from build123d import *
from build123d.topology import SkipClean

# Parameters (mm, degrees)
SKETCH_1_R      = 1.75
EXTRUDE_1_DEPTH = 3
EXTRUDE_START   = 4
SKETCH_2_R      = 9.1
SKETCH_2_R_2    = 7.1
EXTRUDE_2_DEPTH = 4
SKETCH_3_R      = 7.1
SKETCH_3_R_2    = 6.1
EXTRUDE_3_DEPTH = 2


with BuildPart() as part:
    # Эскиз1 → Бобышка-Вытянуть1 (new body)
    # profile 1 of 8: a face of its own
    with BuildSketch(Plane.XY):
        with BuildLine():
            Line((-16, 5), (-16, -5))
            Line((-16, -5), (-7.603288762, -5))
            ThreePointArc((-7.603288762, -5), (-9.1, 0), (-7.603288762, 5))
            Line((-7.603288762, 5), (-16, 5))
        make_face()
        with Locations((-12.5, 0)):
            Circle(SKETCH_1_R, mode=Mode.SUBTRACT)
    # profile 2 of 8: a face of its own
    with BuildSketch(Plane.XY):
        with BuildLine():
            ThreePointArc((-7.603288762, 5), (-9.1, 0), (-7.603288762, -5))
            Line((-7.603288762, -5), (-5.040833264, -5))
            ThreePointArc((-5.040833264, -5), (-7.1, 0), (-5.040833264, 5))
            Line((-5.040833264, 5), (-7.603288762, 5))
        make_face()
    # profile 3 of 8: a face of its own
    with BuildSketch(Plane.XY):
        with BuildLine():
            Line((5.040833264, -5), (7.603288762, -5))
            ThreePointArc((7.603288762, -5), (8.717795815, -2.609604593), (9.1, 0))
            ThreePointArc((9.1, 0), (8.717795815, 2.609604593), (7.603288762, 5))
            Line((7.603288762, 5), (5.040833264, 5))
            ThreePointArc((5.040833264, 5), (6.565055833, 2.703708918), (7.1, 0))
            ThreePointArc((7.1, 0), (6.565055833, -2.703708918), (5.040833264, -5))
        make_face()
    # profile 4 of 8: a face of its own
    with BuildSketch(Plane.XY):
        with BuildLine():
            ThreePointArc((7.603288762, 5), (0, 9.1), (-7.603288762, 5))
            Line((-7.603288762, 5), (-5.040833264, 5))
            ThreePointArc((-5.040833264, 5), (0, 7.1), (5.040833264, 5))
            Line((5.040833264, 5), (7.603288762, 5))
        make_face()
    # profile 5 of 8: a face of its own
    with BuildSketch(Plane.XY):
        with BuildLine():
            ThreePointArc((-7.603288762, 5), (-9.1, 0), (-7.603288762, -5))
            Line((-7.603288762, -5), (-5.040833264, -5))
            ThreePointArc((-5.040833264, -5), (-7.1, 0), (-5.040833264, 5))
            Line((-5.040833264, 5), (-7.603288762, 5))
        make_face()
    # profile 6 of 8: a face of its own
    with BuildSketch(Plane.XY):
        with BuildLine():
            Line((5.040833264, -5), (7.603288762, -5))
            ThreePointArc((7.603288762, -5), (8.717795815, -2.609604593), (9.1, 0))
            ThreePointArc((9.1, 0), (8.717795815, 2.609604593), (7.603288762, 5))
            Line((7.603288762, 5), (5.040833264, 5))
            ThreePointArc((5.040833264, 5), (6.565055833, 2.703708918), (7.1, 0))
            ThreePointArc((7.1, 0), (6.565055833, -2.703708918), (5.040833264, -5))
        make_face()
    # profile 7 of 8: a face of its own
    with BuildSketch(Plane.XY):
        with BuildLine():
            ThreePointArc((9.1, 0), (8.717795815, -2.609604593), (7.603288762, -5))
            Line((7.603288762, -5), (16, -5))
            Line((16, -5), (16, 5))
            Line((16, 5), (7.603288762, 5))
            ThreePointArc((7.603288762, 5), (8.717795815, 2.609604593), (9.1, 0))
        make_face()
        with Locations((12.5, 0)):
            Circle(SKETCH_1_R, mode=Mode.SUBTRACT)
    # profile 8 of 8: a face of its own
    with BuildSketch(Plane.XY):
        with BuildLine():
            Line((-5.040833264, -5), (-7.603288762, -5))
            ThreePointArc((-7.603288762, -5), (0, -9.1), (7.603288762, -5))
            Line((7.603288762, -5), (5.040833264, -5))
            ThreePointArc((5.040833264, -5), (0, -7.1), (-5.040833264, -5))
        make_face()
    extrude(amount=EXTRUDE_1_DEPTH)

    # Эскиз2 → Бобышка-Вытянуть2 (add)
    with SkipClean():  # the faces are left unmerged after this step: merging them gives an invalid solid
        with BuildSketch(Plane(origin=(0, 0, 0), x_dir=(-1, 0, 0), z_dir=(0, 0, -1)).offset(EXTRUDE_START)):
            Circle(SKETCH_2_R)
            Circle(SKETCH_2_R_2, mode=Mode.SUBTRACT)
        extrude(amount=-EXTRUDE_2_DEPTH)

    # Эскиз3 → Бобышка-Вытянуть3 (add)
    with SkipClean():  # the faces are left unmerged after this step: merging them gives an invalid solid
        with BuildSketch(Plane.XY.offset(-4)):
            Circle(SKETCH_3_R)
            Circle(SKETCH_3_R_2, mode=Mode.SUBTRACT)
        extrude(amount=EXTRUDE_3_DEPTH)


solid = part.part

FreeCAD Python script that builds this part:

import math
import FreeCAD as App
import Part
import Sketcher
from FreeCAD import Vector

doc = App.newDocument("Part")
body = doc.addObject("PartDesign::Body", "Body")

sketch1 = body.newObject("Sketcher::SketchObject", "Sketch")
sketch1.AttachmentSupport = (doc.getObject("XY_Plane"), [""])
sketch1.MapMode = "FlatFace"
sketch1.addGeometry(Part.LineSegment(Vector(-16, 5, 0), Vector(-16, -5, 0)), False)
sketch1.addGeometry(Part.LineSegment(Vector(-16, -5, 0), Vector(-7.6, -5, 0)), False)
sketch1.addGeometry(Part.ArcOfCircle(Part.Circle(Vector(0, 0, 0), Vector(0, 0, 1), 9.1), math.radians(-147), math.radians(-33)), False)
sketch1.addGeometry(Part.LineSegment(Vector(7.6, -5, 0), Vector(16, -5, 0)), False)
sketch1.addGeometry(Part.LineSegment(Vector(16, -5, 0), Vector(16, 5, 0)), False)
sketch1.addGeometry(Part.LineSegment(Vector(16, 5, 0), Vector(7.6, 5, 0)), False)
sketch1.addGeometry(Part.ArcOfCircle(Part.Circle(Vector(0, 0, 0), Vector(0, 0, 1), 9.1), math.radians(33), math.radians(147)), False)
sketch1.addGeometry(Part.LineSegment(Vector(-7.6, 5, 0), Vector(-16, 5, 0)), False)
sketch1.addGeometry(Part.Circle(Vector(-12.5, 0, 0), Vector(0, 0, 1), 1.8), False)
sketch1.addGeometry(Part.ArcOfCircle(Part.Circle(Vector(0, 0, 0), Vector(0, 0, 1), 7.1), math.radians(135), math.radians(225)), False)
sketch1.addGeometry(Part.ArcOfCircle(Part.Circle(Vector(0, 0, 0), Vector(0, 0, 1), 7.1), math.radians(45), math.radians(135)), False)
sketch1.addGeometry(Part.ArcOfCircle(Part.Circle(Vector(0, 0, 0), Vector(0, 0, 1), 7.1), math.radians(0), math.radians(45)), False)
sketch1.addGeometry(Part.ArcOfCircle(Part.Circle(Vector(0, 0, 0), Vector(0, 0, 1), 7.1), math.radians(-45), math.radians(0)), False)
sketch1.addGeometry(Part.ArcOfCircle(Part.Circle(Vector(0, 0, 0), Vector(0, 0, 1), 7.1), math.radians(-135), math.radians(-45)), False)
sketch1.addGeometry(Part.Circle(Vector(12.5, 0, 0), Vector(0, 0, 1), 1.8), False)
sketch1.addConstraint(Sketcher.Constraint("Coincident", 0, 2, 1, 1))
sketch1.addConstraint(Sketcher.Constraint("Coincident", 1, 2, 2, 1))
sketch1.addConstraint(Sketcher.Constraint("Coincident", 2, 2, 3, 1))
sketch1.addConstraint(Sketcher.Constraint("Coincident", 3, 2, 4, 1))
sketch1.addConstraint(Sketcher.Constraint("Coincident", 4, 2, 5, 1))
sketch1.addConstraint(Sketcher.Constraint("Coincident", 5, 2, 6, 1))
sketch1.addConstraint(Sketcher.Constraint("Coincident", 6, 2, 7, 1))
sketch1.addConstraint(Sketcher.Constraint("Coincident", 7, 2, 0, 1))
sketch1.addConstraint(Sketcher.Constraint("Tangent", 9, 1, 10, 2))
sketch1.addConstraint(Sketcher.Constraint("Tangent", 10, 1, 11, 2))
sketch1.addConstraint(Sketcher.Constraint("Tangent", 11, 1, 12, 2))
sketch1.addConstraint(Sketcher.Constraint("Tangent", 12, 1, 13, 2))
sketch1.addConstraint(Sketcher.Constraint("Tangent", 13, 1, 9, 2))
sketch1.addConstraint(Sketcher.Constraint("Vertical", 0))
sketch1.addConstraint(Sketcher.Constraint("Horizontal", 1))
sketch1.addConstraint(Sketcher.Constraint("Horizontal", 3))
sketch1.addConstraint(Sketcher.Constraint("Vertical", 4))
sketch1.addConstraint(Sketcher.Constraint("Horizontal", 5))
sketch1.addConstraint(Sketcher.Constraint("Horizontal", 7))
sketch1.addConstraint(Sketcher.Constraint("Coincident", 2, 3, -1, 1))
sketch1.addConstraint(Sketcher.Constraint("Coincident", 6, 3, -1, 1))
sketch1.addConstraint(Sketcher.Constraint("Coincident", 9, 3, -1, 1))
sketch1.addConstraint(Sketcher.Constraint("Coincident", 11, 3, -1, 1))
sketch1.addConstraint(Sketcher.Constraint("Equal", 2, 6))
sketch1.addConstraint(Sketcher.Constraint("Equal", 8, 14))
sketch1.addConstraint(Sketcher.Constraint("Symmetric", 8, 3, 14, 3, -1, 1))
sketch1.addConstraint(Sketcher.Constraint("Symmetric", 0, 2, 4, 2, -1, 1))
sketch1.addConstraint(Sketcher.Constraint("PointOnObject", 8, 3, -1))
sketch1.addConstraint(Sketcher.Constraint("PointOnObject", 11, 1, -1))
sketch1.addConstraint(Sketcher.Constraint("Horizontal", 1, 2, 2, 2))
sketch1.addConstraint(Sketcher.Constraint("Horizontal", 5, 2, 6, 2))
sketch1.addConstraint(Sketcher.Constraint("Horizontal", 7, 2, 9, 1))
sketch1.addConstraint(Sketcher.Constraint("Horizontal", 9, 1, 10, 1))
sketch1.addConstraint(Sketcher.Constraint("Horizontal", 3, 2, 12, 1))
sketch1.addConstraint(Sketcher.Constraint("Horizontal", 12, 1, 13, 1))
sketch1.addConstraint(Sketcher.Constraint("Diameter", 8, 3.5))
sketch1.addConstraint(Sketcher.Constraint("Radius", 2, 9.1))
sketch1.addConstraint(Sketcher.Constraint("Radius", 9, 7.1))
sketch1.addConstraint(Sketcher.Constraint("DistanceY", 0, 2, 0, 1, 10.0))
sketch1.addConstraint(Sketcher.Constraint("DistanceX", 0, 2, -1, 1, 16.0))
sketch1.addConstraint(Sketcher.Constraint("DistanceX", 8, 3, -1, 1, 12.5))
pad1 = body.newObject("PartDesign::Pad", "Pad")
pad1.Profile = sketch1
pad1.Length = 3

sketch2 = body.newObject("Sketcher::SketchObject", "Sketch001")
sketch2.AttachmentSupport = (doc.getObject("XY_Plane"), [""])
sketch2.MapMode = "FlatFace"
sketch2.AttachmentOffset = App.Placement(Vector(0, 0, -4), App.Rotation())
sketch2.addGeometry(Part.Circle(Vector(0, 0, 0), Vector(0, 0, 1), 9), False)
sketch2.addGeometry(Part.Circle(Vector(0, 0, 0), Vector(0, 0, 1), 7), False)
sketch2.addConstraint(Sketcher.Constraint("Coincident", 0, 3, -1, 1))
sketch2.addConstraint(Sketcher.Constraint("Coincident", 1, 3, -1, 1))
sketch2.addConstraint(Sketcher.Constraint("Diameter", 0, 18.2))
sketch2.addConstraint(Sketcher.Constraint("Diameter", 1, 14.2))
pad2 = body.newObject("PartDesign::Pad", "Pad001")
pad2.Profile = sketch2
pad2.Length = 4

sketch3 = body.newObject("Sketcher::SketchObject", "Sketch002")
sketch3.AttachmentSupport = (doc.getObject("XY_Plane"), [""])
sketch3.MapMode = "FlatFace"
sketch3.AttachmentOffset = App.Placement(Vector(0, 0, -4), App.Rotation())
sketch3.addGeometry(Part.Circle(Vector(0, 0, 0), Vector(0, 0, 1), 7), False)
sketch3.addGeometry(Part.Circle(Vector(0, 0, 0), Vector(0, 0, 1), 6), False)
sketch3.addConstraint(Sketcher.Constraint("Coincident", 0, 3, -1, 1))
sketch3.addConstraint(Sketcher.Constraint("Coincident", 1, 3, -1, 1))
sketch3.addConstraint(Sketcher.Constraint("Diameter", 0, 14.2))
sketch3.addConstraint(Sketcher.Constraint("Diameter", 1, 12.2))
pad3 = body.newObject("PartDesign::Pad", "Pad002")
pad3.Profile = sketch3
pad3.Length = 2

doc.recompute()
